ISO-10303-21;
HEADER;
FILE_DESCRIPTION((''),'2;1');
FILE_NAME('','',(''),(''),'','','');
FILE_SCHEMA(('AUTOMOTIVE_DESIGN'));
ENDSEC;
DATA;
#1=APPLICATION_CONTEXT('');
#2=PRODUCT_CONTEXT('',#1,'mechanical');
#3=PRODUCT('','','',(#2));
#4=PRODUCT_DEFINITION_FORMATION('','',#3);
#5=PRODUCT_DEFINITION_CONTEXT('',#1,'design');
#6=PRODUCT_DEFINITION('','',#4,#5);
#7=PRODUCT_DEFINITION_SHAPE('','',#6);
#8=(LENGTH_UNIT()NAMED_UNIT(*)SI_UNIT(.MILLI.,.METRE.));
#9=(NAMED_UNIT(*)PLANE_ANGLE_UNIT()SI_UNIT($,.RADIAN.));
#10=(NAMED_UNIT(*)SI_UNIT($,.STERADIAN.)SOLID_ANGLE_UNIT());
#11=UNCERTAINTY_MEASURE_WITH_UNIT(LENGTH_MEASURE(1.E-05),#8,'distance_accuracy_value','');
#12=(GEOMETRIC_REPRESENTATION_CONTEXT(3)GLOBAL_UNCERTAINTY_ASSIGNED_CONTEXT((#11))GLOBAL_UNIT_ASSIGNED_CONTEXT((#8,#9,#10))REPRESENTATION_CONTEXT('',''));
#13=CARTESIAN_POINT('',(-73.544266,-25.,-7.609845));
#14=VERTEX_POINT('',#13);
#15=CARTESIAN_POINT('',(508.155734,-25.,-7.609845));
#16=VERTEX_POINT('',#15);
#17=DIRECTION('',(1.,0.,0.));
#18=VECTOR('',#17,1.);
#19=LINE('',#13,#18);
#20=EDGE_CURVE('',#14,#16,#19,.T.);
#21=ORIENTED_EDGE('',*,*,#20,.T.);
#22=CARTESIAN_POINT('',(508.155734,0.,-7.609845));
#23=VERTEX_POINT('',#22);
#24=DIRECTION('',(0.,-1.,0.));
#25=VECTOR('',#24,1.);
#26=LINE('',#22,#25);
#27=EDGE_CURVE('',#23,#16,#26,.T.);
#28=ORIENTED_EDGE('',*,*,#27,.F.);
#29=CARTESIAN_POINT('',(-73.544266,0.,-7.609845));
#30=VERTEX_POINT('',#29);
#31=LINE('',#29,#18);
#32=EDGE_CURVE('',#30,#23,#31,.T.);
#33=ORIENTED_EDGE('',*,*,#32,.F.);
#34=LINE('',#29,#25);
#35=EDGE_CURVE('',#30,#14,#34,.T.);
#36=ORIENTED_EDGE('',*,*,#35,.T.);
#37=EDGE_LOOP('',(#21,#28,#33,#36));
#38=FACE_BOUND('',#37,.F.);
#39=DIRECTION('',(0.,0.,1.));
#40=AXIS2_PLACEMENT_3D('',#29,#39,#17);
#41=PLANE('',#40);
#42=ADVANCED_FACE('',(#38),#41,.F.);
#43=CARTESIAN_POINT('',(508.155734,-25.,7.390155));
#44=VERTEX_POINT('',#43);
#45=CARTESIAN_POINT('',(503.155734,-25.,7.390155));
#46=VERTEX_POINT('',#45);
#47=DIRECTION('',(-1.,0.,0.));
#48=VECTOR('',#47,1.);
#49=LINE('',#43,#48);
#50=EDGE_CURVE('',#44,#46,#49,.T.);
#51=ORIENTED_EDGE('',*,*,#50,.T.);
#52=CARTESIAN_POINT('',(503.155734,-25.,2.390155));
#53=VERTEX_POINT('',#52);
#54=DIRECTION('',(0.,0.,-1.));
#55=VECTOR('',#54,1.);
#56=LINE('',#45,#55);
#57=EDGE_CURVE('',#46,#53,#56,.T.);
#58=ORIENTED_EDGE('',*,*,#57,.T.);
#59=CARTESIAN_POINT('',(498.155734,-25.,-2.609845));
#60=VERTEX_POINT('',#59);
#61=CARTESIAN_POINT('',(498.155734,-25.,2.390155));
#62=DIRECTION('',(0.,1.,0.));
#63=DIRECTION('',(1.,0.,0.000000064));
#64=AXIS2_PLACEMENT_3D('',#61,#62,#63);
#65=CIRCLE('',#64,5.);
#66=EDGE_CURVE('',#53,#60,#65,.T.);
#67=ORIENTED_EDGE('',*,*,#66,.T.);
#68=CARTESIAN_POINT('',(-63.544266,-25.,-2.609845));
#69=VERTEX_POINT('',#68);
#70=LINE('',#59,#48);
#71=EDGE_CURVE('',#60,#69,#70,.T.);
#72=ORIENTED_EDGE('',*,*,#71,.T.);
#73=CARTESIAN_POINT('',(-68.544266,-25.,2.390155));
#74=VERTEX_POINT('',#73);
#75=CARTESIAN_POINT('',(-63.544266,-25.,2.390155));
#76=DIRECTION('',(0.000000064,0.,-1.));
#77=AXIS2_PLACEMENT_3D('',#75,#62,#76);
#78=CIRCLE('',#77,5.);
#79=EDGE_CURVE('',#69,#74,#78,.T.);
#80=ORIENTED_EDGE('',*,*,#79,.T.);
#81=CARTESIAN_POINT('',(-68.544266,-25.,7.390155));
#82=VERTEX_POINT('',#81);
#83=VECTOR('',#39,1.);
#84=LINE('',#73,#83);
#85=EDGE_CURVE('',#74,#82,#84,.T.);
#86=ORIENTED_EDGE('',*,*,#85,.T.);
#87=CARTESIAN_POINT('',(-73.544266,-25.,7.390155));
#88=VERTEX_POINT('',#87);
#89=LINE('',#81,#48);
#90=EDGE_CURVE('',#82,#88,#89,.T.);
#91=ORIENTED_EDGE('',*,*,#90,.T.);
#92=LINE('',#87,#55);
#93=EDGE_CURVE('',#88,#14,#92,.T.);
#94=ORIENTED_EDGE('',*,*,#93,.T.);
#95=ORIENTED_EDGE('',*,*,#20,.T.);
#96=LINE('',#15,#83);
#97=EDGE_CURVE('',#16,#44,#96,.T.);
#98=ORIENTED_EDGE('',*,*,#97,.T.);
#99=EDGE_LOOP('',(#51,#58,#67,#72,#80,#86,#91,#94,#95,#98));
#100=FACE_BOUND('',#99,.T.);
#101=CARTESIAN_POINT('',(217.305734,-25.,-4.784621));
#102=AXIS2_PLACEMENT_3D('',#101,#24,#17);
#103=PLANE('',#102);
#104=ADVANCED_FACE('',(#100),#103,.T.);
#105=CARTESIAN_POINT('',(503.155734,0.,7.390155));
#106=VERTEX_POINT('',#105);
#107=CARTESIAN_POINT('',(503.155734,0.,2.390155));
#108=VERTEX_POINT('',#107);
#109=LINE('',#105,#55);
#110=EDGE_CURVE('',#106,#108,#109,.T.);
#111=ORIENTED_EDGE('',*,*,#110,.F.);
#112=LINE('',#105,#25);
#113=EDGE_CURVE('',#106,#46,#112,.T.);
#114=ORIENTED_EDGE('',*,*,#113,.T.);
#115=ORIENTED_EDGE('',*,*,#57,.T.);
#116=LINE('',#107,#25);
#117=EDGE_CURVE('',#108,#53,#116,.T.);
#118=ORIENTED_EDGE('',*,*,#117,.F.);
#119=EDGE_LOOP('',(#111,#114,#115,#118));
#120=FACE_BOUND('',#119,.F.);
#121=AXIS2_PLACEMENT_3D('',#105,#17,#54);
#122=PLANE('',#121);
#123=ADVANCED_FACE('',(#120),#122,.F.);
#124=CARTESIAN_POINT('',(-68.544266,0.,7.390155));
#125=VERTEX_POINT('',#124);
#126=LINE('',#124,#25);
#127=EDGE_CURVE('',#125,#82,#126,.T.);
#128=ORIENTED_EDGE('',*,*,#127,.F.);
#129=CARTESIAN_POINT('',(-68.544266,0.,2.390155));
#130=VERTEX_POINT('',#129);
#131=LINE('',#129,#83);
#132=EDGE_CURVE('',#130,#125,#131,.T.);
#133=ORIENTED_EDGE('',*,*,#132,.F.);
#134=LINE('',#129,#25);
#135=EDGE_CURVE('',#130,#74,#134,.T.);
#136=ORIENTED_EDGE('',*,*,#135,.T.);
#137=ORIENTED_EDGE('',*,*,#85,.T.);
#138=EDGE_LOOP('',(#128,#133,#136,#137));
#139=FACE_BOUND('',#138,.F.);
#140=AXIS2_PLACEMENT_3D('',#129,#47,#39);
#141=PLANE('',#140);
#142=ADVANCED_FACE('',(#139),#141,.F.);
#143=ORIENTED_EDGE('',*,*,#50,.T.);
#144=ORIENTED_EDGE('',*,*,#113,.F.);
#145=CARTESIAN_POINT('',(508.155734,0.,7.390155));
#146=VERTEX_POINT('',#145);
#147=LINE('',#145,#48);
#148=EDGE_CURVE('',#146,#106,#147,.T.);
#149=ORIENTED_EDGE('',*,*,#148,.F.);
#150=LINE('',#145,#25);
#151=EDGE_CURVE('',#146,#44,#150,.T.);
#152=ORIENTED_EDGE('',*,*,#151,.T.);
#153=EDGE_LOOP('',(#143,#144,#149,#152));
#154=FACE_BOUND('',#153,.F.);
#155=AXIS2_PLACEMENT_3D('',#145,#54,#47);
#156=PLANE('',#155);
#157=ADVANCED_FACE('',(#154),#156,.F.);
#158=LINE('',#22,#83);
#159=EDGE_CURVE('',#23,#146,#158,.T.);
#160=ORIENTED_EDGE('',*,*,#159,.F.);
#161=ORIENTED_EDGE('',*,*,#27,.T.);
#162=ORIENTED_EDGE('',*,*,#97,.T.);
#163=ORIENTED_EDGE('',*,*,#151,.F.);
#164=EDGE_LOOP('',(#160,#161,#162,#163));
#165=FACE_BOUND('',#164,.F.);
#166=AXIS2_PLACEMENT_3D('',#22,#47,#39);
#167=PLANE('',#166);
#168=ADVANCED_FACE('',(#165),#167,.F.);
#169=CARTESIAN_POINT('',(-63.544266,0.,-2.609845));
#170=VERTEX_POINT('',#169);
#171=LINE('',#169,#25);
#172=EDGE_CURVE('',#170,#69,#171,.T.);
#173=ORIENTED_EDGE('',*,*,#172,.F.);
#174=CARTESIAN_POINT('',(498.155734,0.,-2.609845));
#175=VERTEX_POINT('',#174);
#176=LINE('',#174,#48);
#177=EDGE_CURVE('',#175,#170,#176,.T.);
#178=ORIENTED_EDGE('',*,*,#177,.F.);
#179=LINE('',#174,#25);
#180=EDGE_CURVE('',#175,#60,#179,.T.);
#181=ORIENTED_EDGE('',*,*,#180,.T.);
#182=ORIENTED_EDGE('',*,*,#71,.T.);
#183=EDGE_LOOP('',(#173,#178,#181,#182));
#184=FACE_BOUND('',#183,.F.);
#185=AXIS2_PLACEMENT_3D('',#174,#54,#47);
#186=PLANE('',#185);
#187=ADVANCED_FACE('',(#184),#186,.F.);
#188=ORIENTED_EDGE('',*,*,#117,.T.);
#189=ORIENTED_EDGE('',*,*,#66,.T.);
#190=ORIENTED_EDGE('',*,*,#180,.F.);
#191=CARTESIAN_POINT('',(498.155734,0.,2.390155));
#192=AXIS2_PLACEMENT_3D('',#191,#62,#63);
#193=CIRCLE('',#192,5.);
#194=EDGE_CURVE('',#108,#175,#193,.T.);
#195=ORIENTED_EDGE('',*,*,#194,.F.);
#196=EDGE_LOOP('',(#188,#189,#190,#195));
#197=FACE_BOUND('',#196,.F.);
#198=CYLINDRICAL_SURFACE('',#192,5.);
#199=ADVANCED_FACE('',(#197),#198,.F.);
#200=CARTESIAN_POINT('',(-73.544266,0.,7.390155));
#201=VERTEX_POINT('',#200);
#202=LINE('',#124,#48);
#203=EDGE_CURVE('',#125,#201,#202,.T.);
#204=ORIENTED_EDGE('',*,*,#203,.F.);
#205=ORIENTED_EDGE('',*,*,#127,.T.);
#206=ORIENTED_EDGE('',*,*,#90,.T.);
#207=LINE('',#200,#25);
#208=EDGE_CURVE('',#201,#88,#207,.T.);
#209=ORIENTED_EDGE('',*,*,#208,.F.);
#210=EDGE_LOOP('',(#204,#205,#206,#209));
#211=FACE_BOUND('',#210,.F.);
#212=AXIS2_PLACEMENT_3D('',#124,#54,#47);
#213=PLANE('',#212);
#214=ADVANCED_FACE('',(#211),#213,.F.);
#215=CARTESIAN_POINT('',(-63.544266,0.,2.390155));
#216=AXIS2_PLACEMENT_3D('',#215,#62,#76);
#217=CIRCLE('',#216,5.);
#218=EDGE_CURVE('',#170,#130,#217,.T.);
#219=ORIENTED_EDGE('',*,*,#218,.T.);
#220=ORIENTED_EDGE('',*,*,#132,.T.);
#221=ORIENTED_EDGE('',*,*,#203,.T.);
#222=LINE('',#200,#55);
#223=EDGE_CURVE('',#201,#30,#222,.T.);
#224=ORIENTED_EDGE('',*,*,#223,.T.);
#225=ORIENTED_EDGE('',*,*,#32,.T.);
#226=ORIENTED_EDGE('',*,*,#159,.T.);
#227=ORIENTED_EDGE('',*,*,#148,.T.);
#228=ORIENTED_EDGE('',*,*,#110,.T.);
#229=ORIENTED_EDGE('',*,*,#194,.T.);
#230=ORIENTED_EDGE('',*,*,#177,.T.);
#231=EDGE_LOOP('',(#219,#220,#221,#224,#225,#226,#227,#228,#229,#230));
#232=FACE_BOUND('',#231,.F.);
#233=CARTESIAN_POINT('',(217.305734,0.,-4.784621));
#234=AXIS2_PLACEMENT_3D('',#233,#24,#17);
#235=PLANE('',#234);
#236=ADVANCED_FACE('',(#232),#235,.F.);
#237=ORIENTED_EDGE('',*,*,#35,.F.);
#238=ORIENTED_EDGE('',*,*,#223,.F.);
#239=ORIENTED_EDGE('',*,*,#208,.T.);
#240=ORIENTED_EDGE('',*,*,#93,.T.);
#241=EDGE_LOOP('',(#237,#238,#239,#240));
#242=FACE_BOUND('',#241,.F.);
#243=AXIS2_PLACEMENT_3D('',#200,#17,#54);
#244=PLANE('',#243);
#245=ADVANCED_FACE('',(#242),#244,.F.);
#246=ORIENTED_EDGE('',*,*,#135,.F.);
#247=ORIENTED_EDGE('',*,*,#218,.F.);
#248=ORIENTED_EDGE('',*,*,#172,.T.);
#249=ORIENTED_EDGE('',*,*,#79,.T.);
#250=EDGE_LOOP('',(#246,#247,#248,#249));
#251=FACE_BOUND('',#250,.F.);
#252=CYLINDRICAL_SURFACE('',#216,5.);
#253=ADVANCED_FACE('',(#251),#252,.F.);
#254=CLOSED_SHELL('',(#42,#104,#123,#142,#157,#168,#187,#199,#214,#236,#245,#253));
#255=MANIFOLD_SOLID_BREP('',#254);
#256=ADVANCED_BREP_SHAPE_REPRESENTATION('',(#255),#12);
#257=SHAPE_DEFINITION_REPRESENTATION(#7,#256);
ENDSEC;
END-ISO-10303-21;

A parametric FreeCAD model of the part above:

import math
import FreeCAD as App
import Part
import Sketcher

V = App.Vector
Q = App.Units.Quantity

doc = App.newDocument("Part")
body = doc.addObject("PartDesign::Body", "Body")

# Sketch on XZ plane
sketch1 = body.newObject("Sketcher::SketchObject", "Sketch")
sketch1.AttachmentSupport = (doc.getObject("XZ_Plane"), [""])
sketch1.MapMode = "FlatFace"
sketch1.addGeometry([
    Part.ArcOfCircle(Part.Circle(V(-63.5, 2.4, 0), V(0, 0, 1), 5), math.radians(180), math.radians(270)),  # 0
    Part.LineSegment(V(-68.5, 2.4, 0), V(-68.5, 7.4, 0)),  # 1
    Part.LineSegment(V(-68.5, 7.4, 0), V(-73.5, 7.4, 0)),  # 2
    Part.LineSegment(V(-73.5, 7.4, 0), V(-73.5, -7.6, 0)),  # 3
    Part.LineSegment(V(-73.5, -7.6, 0), V(508.2, -7.6, 0)),  # 4
    Part.LineSegment(V(508.2, -7.6, 0), V(508.2, 7.4, 0)),  # 5
    Part.LineSegment(V(508.2, 7.4, 0), V(503.2, 7.4, 0)),  # 6
    Part.LineSegment(V(503.2, 7.4, 0), V(503.2, 2.4, 0)),  # 7
    Part.ArcOfCircle(Part.Circle(V(498.2, 2.4, 0), V(0, 0, 1), 5), math.radians(-90), math.radians(0)),  # 8
    Part.LineSegment(V(498.2, -2.6, 0), V(-63.5, -2.6, 0)),  # 9
], False)
sketch1.addConstraint([
    Sketcher.Constraint("Tangent", 0, 1, 1, 1),
    Sketcher.Constraint("Coincident", 1, 2, 2, 1),
    Sketcher.Constraint("Coincident", 2, 2, 3, 1),
    Sketcher.Constraint("Coincident", 3, 2, 4, 1),
    Sketcher.Constraint("Coincident", 4, 2, 5, 1),
    Sketcher.Constraint("Coincident", 5, 2, 6, 1),
    Sketcher.Constraint("Coincident", 6, 2, 7, 1),
    Sketcher.Constraint("Tangent", 7, 2, 8, 2),
    Sketcher.Constraint("Tangent", 8, 1, 9, 1),
    Sketcher.Constraint("Tangent", 9, 2, 0, 2),
    Sketcher.Constraint("Vertical", 1),
    Sketcher.Constraint("Horizontal", 2),
    Sketcher.Constraint("Vertical", 3),
    Sketcher.Constraint("Horizontal", 4),
    Sketcher.Constraint("Vertical", 5),
    Sketcher.Constraint("Horizontal", 6),
    Sketcher.Constraint("Vertical", 7),
    Sketcher.Constraint("Horizontal", 9),
    Sketcher.Constraint("Equal", 0, 8),
    Sketcher.Constraint("Horizontal", 2, 2, 5, 2),
    Sketcher.Constraint("Equal", 2, 6),
    Sketcher.Constraint("Equal", 6, 1),
    Sketcher.Constraint("Radius", 0, Q("5 mm")),
    Sketcher.Constraint("DistanceX", 2, 2, 2, 1, Q("5 mm")),
    Sketcher.Constraint("DistanceY", 3, 2, 3, 1, Q("15 mm")),
    Sketcher.Constraint("DistanceX", 4, 1, 4, 2, Q("581.7 mm")),
    Sketcher.Constraint("DistanceX", 0, 3, -1, 1, Q("63.544266 mm")),
    Sketcher.Constraint("DistanceY", -1, 1, 0, 3, Q("2.390155 mm")),
])
pad1 = body.newObject("PartDesign::Pad", "Pad")
pad1.Profile = sketch1
pad1.Length = 25

doc.recompute()
